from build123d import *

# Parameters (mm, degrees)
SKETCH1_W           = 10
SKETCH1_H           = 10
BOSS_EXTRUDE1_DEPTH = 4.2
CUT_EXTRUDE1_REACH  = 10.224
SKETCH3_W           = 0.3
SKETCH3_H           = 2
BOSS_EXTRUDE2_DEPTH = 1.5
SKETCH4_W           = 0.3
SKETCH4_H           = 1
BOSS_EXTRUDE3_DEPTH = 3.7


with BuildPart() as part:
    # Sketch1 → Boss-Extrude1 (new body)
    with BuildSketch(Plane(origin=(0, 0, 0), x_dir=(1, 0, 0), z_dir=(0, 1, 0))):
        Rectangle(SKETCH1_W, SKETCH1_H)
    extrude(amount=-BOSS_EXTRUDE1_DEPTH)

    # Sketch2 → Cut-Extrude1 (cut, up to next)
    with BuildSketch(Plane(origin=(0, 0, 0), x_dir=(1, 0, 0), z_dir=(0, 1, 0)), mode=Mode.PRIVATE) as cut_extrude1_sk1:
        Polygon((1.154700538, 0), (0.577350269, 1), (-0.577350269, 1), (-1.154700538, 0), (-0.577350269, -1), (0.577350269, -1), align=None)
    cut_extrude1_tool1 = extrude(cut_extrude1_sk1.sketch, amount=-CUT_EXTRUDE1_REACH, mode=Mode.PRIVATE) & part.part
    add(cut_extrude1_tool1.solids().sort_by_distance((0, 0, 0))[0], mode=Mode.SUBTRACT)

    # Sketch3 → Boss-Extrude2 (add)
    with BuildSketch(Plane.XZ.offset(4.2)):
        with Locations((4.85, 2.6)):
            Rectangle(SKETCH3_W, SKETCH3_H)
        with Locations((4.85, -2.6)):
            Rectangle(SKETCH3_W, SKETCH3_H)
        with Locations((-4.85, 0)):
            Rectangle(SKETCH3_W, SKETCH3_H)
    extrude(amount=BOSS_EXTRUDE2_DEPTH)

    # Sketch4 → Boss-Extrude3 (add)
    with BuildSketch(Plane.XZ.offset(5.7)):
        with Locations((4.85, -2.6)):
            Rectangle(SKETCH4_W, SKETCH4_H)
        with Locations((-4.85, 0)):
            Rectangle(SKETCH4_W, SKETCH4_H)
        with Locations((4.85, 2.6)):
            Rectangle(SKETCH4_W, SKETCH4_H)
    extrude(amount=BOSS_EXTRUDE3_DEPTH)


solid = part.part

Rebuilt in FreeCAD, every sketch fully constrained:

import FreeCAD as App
import Part
import Sketcher

V = App.Vector
Q = App.Units.Quantity


def add_polygon(sketch, points):
    """Adds a closed chain of lines whose ends are joined by coincident constraints."""
    first, n = sketch.GeometryCount, len(points)
    for a, b in zip(points, points[1:] + points[:1]):
        sketch.addGeometry(Part.LineSegment(App.Vector(*a, 0), App.Vector(*b, 0)), False)
    for i in range(n):
        sketch.addConstraint(Sketcher.Constraint("Coincident", first + i, 2, first + (i + 1) % n, 1))

doc = App.newDocument("Part")
body = doc.addObject("PartDesign::Body", "Body")

sketch1 = body.newObject("Sketcher::SketchObject", "Sketch")
sketch1.AttachmentSupport = (doc.getObject("XZ_Plane"), [""])
sketch1.MapMode = "FlatFace"
add_polygon(sketch1, [(-5, -5), (-5, 5), (5, 5), (5, -5)])
sketch1.addConstraint([
    Sketcher.Constraint("Vertical", 0),
    Sketcher.Constraint("Horizontal", 1),
    Sketcher.Constraint("Vertical", 2),
    Sketcher.Constraint("Horizontal", 3),
    Sketcher.Constraint("Symmetric", 0, 2, 2, 2, -1, 1),
    Sketcher.Constraint("Equal", 3, 0),
    Sketcher.Constraint("DistanceX", 1, 1, 1, 2, 10.0),
])
pad1 = body.newObject("PartDesign::Pad", "Pad")
pad1.Profile = sketch1
pad1.Length = 4.2

sketch2 = body.newObject("Sketcher::SketchObject", "Sketch001")
sketch2.AttachmentSupport = (doc.getObject("XZ_Plane"), [""])
sketch2.MapMode = "FlatFace"
add_polygon(sketch2, [(1.2, 0), (0.6, -1), (-0.6, -1), (-1.2, 0), (-0.6, 1), (0.6, 1)])
sketch2.addConstraint([
    Sketcher.Constraint("Horizontal", 1),
    Sketcher.Constraint("Horizontal", 4),
    Sketcher.Constraint("Symmetric", 0, 2, 3, 2, -1, 1),
    Sketcher.Constraint("Symmetric", 2, 2, 5, 2, -1, 1),
    Sketcher.Constraint("PointOnObject", 2, 2, -1),
    Sketcher.Constraint("Parallel", 2, 5),
    Sketcher.Constraint("Vertical", 1, 2, 3, 2),
    Sketcher.Constraint("Angle", 0, Q("-120 deg")),
    Sketcher.Constraint("DistanceY", 0, 2, -1, 1, 1.0),
    Sketcher.Constraint("DistanceX", 1, 2, 1, 1, 1.154701),
])
pocket1 = body.newObject("PartDesign::Pocket", "Pocket")
pocket1.Profile = sketch2
pocket1.Type = "UpToFirst"
pocket1.Reversed = True

sketch3 = body.newObject("Sketcher::SketchObject", "Sketch002")
sketch3.AttachmentSupport = (doc.getObject("XZ_Plane"), [""])
sketch3.MapMode = "FlatFace"
sketch3.AttachmentOffset = App.Placement(V(0, 0, 4.2), App.Rotation())
add_polygon(sketch3, [(4.7, 3.6), (4.7, 1.6), (5, 1.6), (5, 3.6)])
add_polygon(sketch3, [(4.7, -1.6), (4.7, -3.6), (5, -3.6), (5, -1.6)])
add_polygon(sketch3, [(-5, 1), (-5, -1), (-4.7, -1), (-4.7, 1)])
sketch3.addConstraint([
    Sketcher.Constraint("Vertical", 0),
    Sketcher.Constraint("Horizontal", 1),
    Sketcher.Constraint("Vertical", 2),
    Sketcher.Constraint("Horizontal", 3),
    Sketcher.Constraint("Vertical", 4),
    Sketcher.Constraint("Horizontal", 5),
    Sketcher.Constraint("Vertical", 6),
    Sketcher.Constraint("Horizontal", 7),
    Sketcher.Constraint("Vertical", 8),
    Sketcher.Constraint("Horizontal", 9),
    Sketcher.Constraint("Vertical", 10),
    Sketcher.Constraint("Horizontal", 11),
    Sketcher.Constraint("Symmetric", 3, 2, 4, 2, -1),
    Sketcher.Constraint("Symmetric", 1, 2, 6, 2, -1),
    Sketcher.Constraint("Equal", 7, 9),
    Sketcher.Constraint("Equal", 6, 8),
    Sketcher.Constraint("DistanceY", 0, 2, 0, 1, 2.0),
    Sketcher.Constraint("DistanceX", 1, 1, 1, 2, 0.3),
    Sketcher.Constraint("DistanceX", -1, 1, 1, 2, 5.0),
    Sketcher.Constraint("DistanceX", 8, 2, -1, 1, 5.0),
    Sketcher.Constraint("DistanceY", 8, 2, -1, 1, 1.0),
    Sketcher.Constraint("DistanceY", -1, 1, 0, 2, 1.6),
])
pad2 = body.newObject("PartDesign::Pad", "Pad001")
pad2.Profile = sketch3
pad2.Length = 1.5

sketch4 = body.newObject("Sketcher::SketchObject", "Sketch003")
sketch4.AttachmentSupport = (doc.getObject("XZ_Plane"), [""])
sketch4.MapMode = "FlatFace"
sketch4.AttachmentOffset = App.Placement(V(0, 0, 5.7), App.Rotation())
add_polygon(sketch4, [(4.7, -2.1), (4.7, -3.1), (5, -3.1), (5, -2.1)])
add_polygon(sketch4, [(-5, 0.5), (-5, -0.5), (-4.7, -0.5), (-4.7, 0.5)])
add_polygon(sketch4, [(4.7, 3.1), (4.7, 2.1), (5, 2.1), (5, 3.1)])
sketch4.addConstraint([
    Sketcher.Constraint("Vertical", 0),
    Sketcher.Constraint("Horizontal", 1),
    Sketcher.Constraint("Vertical", 2),
    Sketcher.Constraint("Horizontal", 3),
    Sketcher.Constraint("Vertical", 4),
    Sketcher.Constraint("Horizontal", 5),
    Sketcher.Constraint("Vertical", 6),
    Sketcher.Constraint("Horizontal", 7),
    Sketcher.Constraint("Vertical", 8),
    Sketcher.Constraint("Horizontal", 9),
    Sketcher.Constraint("Vertical", 10),
    Sketcher.Constraint("Horizontal", 11),
    Sketcher.Constraint("Symmetric", 3, 2, 8, 2, -1),
    Sketcher.Constraint("Symmetric", 1, 2, 10, 2, -1),
    Sketcher.Constraint("Equal", 3, 5),
    Sketcher.Constraint("Equal", 2, 4),
    Sketcher.Constraint("DistanceY", 0, 2, 0, 1, 1.0),
    Sketcher.Constraint("DistanceX", 1, 1, 1, 2, 0.3),
    Sketcher.Constraint("DistanceX", -1, 1, 1, 2, 5.0),
    Sketcher.Constraint("DistanceX", 4, 2, -1, 1, 5.0),
    Sketcher.Constraint("DistanceY", 0, 2, -1, 1, 3.1),
    Sketcher.Constraint("DistanceY", 4, 2, -1, 1, 0.5),
])
pad3 = body.newObject("PartDesign::Pad", "Pad002")
pad3.Profile = sketch4
pad3.Length = 3.7

doc.recompute()
